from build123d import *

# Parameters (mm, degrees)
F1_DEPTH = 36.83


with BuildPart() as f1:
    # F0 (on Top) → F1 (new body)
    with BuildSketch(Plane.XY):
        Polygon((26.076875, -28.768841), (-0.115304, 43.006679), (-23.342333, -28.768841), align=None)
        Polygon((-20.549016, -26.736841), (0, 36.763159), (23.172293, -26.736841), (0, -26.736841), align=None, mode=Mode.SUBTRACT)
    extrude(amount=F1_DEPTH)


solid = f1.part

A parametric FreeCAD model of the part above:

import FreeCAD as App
import Part
import Sketcher
Q = App.Units.Quantity

doc = App.newDocument("Part")
body = doc.addObject("PartDesign::Body", "Body")

# Sketch on XY plane
sketch1 = doc.addObject("Sketcher::SketchObject", "Sketch")
body.addObject(sketch1)
sketch1.AttachmentSupport = (doc.XY_Plane, [""])
sketch1.MapMode = "FlatFace"
sketch1.addGeometry([
    Part.LineSegment(App.Vector(26.076875, -28.768841, 0), App.Vector(-0.115304, 43.006679, 0)),  # 0
    Part.LineSegment(App.Vector(-0.115304, 43.006679, 0), App.Vector(-23.342333, -28.768841, 0)),  # 1
    Part.LineSegment(App.Vector(-23.342333, -28.768841, 0), App.Vector(26.076875, -28.768841, 0)),  # 2
    Part.LineSegment(App.Vector(23.172293, -26.736841, 0), App.Vector(-20.549016, -26.736841, 0)),  # 3
    Part.LineSegment(App.Vector(-20.549016, -26.736841, 0), App.Vector(0, 36.763159, 0)),  # 4
    Part.LineSegment(App.Vector(0, 36.763159, 0), App.Vector(23.172293, -26.736841, 0)),  # 5
], False)
sketch1.addConstraint([
    Sketcher.Constraint("Coincident", 0, 2, 1, 1),
    Sketcher.Constraint("Coincident", 1, 2, 2, 1),
    Sketcher.Constraint("Coincident", 2, 2, 0, 1),
    Sketcher.Constraint("Coincident", 3, 2, 4, 1),
    Sketcher.Constraint("Coincident", 4, 2, 5, 1),
    Sketcher.Constraint("Coincident", 5, 2, 3, 1),
    Sketcher.Constraint("Horizontal", 2),
    Sketcher.Constraint("Horizontal", 3),
    Sketcher.Constraint("PointOnObject", 4, 2, -2),
    Sketcher.Constraint("Parallel", 1, 4),
    Sketcher.Constraint("Parallel", 0, 5),
    Sketcher.Constraint("DistanceY", 3, 2, 4, 2, Q("2.5 in")),
    Sketcher.Constraint("DistanceY", 1, 2, 3, 2, Q("0.08 in")),
    Sketcher.Constraint("DistanceX", 3, 2, 3, 1, 43.721309),
    Sketcher.Constraint("Distance", 4, 66.742131),
    Sketcher.Constraint("DistanceX", 2, 1, 2, 2, 49.419208),
    Sketcher.Constraint("DistanceY", -1, 1, 0, 2, 43.006679),
    Sketcher.Constraint("DistanceX", 3, 2, 2, 2, 46.625891),
])
pad1 = doc.addObject("PartDesign::Pad", "Pad")
body.addObject(pad1)
pad1.Profile = sketch1
pad1.Length = Q("1.45 in")

doc.recompute()
